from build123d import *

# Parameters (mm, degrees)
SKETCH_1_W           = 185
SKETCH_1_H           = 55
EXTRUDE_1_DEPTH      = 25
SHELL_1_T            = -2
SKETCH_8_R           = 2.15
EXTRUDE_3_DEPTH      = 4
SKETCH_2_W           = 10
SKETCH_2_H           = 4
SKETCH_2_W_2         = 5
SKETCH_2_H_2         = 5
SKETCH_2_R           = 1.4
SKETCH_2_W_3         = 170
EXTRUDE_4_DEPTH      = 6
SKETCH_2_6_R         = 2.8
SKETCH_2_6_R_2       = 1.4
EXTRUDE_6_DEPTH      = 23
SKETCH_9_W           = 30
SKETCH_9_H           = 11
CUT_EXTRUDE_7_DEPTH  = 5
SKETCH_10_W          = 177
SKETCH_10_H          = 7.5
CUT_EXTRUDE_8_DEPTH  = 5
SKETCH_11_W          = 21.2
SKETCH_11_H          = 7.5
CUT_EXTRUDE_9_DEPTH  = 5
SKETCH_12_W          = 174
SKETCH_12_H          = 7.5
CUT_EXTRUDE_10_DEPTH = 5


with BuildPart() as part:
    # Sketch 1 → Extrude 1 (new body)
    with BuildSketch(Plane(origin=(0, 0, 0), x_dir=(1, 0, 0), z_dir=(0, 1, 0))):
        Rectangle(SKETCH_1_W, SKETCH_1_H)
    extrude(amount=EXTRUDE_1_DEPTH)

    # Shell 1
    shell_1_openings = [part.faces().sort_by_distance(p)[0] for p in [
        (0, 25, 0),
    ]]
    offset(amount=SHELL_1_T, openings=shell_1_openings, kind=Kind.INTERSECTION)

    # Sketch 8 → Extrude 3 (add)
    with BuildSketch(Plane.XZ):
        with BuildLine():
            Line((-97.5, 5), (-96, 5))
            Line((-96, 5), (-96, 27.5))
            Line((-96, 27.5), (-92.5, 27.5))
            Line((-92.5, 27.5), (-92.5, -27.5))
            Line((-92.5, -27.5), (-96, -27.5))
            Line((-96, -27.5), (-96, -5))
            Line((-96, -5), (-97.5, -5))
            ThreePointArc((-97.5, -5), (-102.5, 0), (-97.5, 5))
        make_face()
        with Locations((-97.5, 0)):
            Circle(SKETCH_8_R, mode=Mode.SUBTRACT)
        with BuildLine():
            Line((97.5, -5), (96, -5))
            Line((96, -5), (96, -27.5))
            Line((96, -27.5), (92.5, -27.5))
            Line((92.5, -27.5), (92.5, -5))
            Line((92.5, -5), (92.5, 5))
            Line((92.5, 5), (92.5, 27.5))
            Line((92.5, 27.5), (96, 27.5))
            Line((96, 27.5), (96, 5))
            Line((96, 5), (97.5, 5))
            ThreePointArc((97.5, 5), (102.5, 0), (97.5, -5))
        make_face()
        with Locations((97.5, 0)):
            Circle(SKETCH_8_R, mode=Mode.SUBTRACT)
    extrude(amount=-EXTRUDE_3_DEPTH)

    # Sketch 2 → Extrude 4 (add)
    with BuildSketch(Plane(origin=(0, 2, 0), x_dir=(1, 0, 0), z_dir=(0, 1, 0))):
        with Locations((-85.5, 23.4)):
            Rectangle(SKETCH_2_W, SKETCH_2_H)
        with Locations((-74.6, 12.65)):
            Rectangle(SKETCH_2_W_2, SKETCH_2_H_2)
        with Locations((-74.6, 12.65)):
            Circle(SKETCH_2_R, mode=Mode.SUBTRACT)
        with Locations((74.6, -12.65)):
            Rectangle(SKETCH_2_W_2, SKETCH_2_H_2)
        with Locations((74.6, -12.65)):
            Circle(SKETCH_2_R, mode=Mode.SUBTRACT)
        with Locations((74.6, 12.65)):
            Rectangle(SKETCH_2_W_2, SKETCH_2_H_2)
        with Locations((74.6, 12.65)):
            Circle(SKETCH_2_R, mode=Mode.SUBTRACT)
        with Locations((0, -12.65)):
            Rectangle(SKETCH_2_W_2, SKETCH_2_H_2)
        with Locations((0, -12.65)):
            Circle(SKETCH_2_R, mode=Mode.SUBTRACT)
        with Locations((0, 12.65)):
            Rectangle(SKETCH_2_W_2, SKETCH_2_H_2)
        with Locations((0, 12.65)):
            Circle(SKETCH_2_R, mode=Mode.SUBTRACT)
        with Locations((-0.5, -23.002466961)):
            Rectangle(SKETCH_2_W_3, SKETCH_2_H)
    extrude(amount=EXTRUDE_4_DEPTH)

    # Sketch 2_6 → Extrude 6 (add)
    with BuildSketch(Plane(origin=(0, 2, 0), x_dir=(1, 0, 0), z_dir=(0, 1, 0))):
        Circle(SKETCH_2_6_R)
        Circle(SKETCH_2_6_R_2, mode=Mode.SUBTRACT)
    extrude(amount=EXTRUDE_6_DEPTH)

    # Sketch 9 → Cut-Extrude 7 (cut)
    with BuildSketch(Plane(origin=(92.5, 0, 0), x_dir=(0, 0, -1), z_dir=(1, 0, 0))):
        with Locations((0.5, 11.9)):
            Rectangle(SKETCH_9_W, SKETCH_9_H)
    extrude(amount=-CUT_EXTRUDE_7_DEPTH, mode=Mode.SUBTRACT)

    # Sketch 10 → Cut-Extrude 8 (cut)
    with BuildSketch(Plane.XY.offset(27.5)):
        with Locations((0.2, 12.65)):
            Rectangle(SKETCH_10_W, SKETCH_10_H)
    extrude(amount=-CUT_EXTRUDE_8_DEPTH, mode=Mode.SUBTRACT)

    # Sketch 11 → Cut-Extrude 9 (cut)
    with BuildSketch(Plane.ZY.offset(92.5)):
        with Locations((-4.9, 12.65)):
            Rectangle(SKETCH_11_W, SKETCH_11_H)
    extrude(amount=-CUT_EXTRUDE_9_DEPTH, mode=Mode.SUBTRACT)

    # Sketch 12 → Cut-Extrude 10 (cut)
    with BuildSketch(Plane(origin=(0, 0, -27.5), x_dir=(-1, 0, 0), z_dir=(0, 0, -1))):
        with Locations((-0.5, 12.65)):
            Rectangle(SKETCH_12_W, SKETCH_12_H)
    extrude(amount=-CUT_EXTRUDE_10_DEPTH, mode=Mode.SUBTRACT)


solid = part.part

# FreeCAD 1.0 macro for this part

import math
import FreeCAD as App
import Part
import Sketcher

V = App.Vector


def faces_at(feature, points):
    """Names of the faces that lie closest to the given points."""
    faces = feature.Shape.Faces
    near = lambda p: min(range(len(faces)), key=lambda i: faces[i].distToShape(Part.Vertex(*p))[0])
    return sorted({f"Face{near(p) + 1}" for p in points})

doc = App.newDocument("Part")
body = doc.addObject("PartDesign::Body", "Body")

# Sketch on XZ plane
sketch1 = body.newObject("Sketcher::SketchObject", "Sketch")
sketch1.AttachmentSupport = (doc.getObject("XZ_Plane"), [""])
sketch1.MapMode = "FlatFace"
sketch1.addGeometry([
    Part.LineSegment(V(-92, -28, 0), V(-92, 28, 0)),
    Part.LineSegment(V(-92, 28, 0), V(92, 28, 0)),
    Part.LineSegment(V(92, 28, 0), V(92, -28, 0)),
    Part.LineSegment(V(92, -28, 0), V(-92, -28, 0)),
], False)
sketch1.addConstraint([
    Sketcher.Constraint("Coincident", 0, 2, 1, 1),
    Sketcher.Constraint("Coincident", 1, 2, 2, 1),
    Sketcher.Constraint("Coincident", 2, 2, 3, 1),
    Sketcher.Constraint("Coincident", 3, 2, 0, 1),
    Sketcher.Constraint("Vertical", 0),
    Sketcher.Constraint("Horizontal", 1),
    Sketcher.Constraint("Vertical", 2),
    Sketcher.Constraint("Horizontal", 3),
    Sketcher.Constraint("Symmetric", 0, 2, 2, 2, -1, 1),
    Sketcher.Constraint("DistanceX", 1, 1, 1, 2, 185.0),
    Sketcher.Constraint("DistanceY", 0, 1, 0, 2, 55.0),
])
pad1 = body.newObject("PartDesign::Pad", "Pad")
pad1.Profile = sketch1
pad1.Length = 25
pad1.Reversed = True
doc.recompute()

thickness = body.newObject("PartDesign::Thickness", "Thickness")
thickness.Base = (pad1, faces_at(pad1, [(0, 25, 0)]))
thickness.Value = 2
thickness.Reversed = True
thickness.Join = "Intersection"

# Sketch on XZ plane
sketch2 = body.newObject("Sketcher::SketchObject", "Sketch001")
sketch2.AttachmentSupport = (doc.getObject("XZ_Plane"), [""])
sketch2.MapMode = "FlatFace"
sketch2.addGeometry([
    Part.LineSegment(V(-96, 5, 0), V(-97.5, 5, 0)),  # 0
    Part.ArcOfCircle(Part.Circle(V(-97.5, 0, 0), V(0, 0, 1), 5), math.radians(90), math.radians(270)),  # 1
    Part.LineSegment(V(-97.5, -5, 0), V(-96, -5, 0)),  # 2
    Part.LineSegment(V(-96, -5, 0), V(-96, -27.5, 0)),  # 3
    Part.LineSegment(V(-96, -27.5, 0), V(-92.5, -27.5, 0)),  # 4
    Part.LineSegment(V(-92.5, -27.5, 0), V(-92.5, 27.5, 0)),  # 5
    Part.LineSegment(V(-92.5, 27.5, 0), V(-96, 27.5, 0)),  # 6
    Part.LineSegment(V(-96, 27.5, 0), V(-96, 5, 0)),  # 7
    Part.Circle(V(-97.5, 0, 0), V(0, 0, 1), 2.1),  # 8
    Part.LineSegment(V(96, -5, 0), V(97.5, -5, 0)),  # 9
    Part.ArcOfCircle(Part.Circle(V(97.5, 0, 0), V(0, 0, 1), 5), math.radians(-90), math.radians(90)),  # 10
    Part.LineSegment(V(97.5, 5, 0), V(96, 5, 0)),  # 11
    Part.LineSegment(V(96, 5, 0), V(96, 27.5, 0)),  # 12
    Part.LineSegment(V(96, 27.5, 0), V(92.5, 27.5, 0)),  # 13
    Part.LineSegment(V(92.5, 27.5, 0), V(92.5, -27.5, 0)),  # 14
    Part.LineSegment(V(92.5, -27.5, 0), V(96, -27.5, 0)),  # 15
    Part.LineSegment(V(96, -27.5, 0), V(96, -5, 0)),  # 16
    Part.Circle(V(97.5, 0, 0), V(0, 0, 1), 2.1),  # 17
], False)
sketch2.addConstraint([
    Sketcher.Constraint("Tangent", 0, 2, 1, 1),
    Sketcher.Constraint("Tangent", 1, 2, 2, 1),
    Sketcher.Constraint("Coincident", 2, 2, 3, 1),
    Sketcher.Constraint("Coincident", 3, 2, 4, 1),
    Sketcher.Constraint("Coincident", 4, 2, 5, 1),
    Sketcher.Constraint("Coincident", 5, 2, 6, 1),
    Sketcher.Constraint("Coincident", 6, 2, 7, 1),
    Sketcher.Constraint("Coincident", 7, 2, 0, 1),
    Sketcher.Constraint("Tangent", 9, 2, 10, 1),
    Sketcher.Constraint("Tangent", 10, 2, 11, 1),
    Sketcher.Constraint("Coincident", 11, 2, 12, 1),
    Sketcher.Constraint("Coincident", 12, 2, 13, 1),
    Sketcher.Constraint("Coincident", 13, 2, 14, 1),
    Sketcher.Constraint("Coincident", 14, 2, 15, 1),
    Sketcher.Constraint("Coincident", 15, 2, 16, 1),
    Sketcher.Constraint("Coincident", 16, 2, 9, 1),
    Sketcher.Constraint("Horizontal", 0),
    Sketcher.Constraint("Horizontal", 2),
    Sketcher.Constraint("Vertical", 3),
    Sketcher.Constraint("Horizontal", 4),
    Sketcher.Constraint("Vertical", 5),
    Sketcher.Constraint("Horizontal", 6),
    Sketcher.Constraint("Vertical", 7),
    Sketcher.Constraint("Horizontal", 9),
    Sketcher.Constraint("Horizontal", 11),
    Sketcher.Constraint("Vertical", 12),
    Sketcher.Constraint("Horizontal", 13),
    Sketcher.Constraint("Vertical", 14),
    Sketcher.Constraint("Horizontal", 15),
    Sketcher.Constraint("Vertical", 16),
    Sketcher.Constraint("Coincident", 8, 3, 1, 3),
    Sketcher.Constraint("Coincident", 17, 3, 10, 3),
    Sketcher.Constraint("Equal", 1, 10),
    Sketcher.Constraint("Equal", 8, 17),
    Sketcher.Constraint("Symmetric", 1, 3, 10, 3, -1, 1),
    Sketcher.Constraint("Symmetric", 3, 2, 12, 2, -1, 1),
    Sketcher.Constraint("Symmetric", 5, 2, 14, 2, -1, 1),
    Sketcher.Constraint("Symmetric", 7, 2, 11, 2, -2),
    Sketcher.Constraint("Symmetric", 3, 2, 15, 2, -2),
    Sketcher.Constraint("Radius", 1, 5.0),
    Sketcher.Constraint("Diameter", 8, 4.3),
    Sketcher.Constraint("DistanceY", 5, 1, 5, 2, 55.0),
    Sketcher.Constraint("DistanceX", 0, 2, 0, 1, 1.5),
    Sketcher.Constraint("DistanceX", 4, 1, 4, 2, 3.5),
    Sketcher.Constraint("DistanceX", 2, 2, -1, 1, 96.0),
])
pad2 = body.newObject("PartDesign::Pad", "Pad001")
pad2.Profile = sketch2
pad2.Length = 4
pad2.Reversed = True

# Sketch on XZ plane
sketch3 = body.newObject("Sketcher::SketchObject", "Sketch002")
sketch3.AttachmentSupport = (doc.getObject("XZ_Plane"), [""])
sketch3.MapMode = "FlatFace"
sketch3.AttachmentOffset = App.Placement(V(0, 0, -2), App.Rotation())
sketch3.addGeometry([
    Part.LineSegment(V(-90.5, -25.4, 0), V(-90.5, -21.4, 0)),  # 0
    Part.LineSegment(V(-90.5, -21.4, 0), V(-80.5, -21.4, 0)),  # 1
    Part.LineSegment(V(-80.5, -21.4, 0), V(-80.5, -25.4, 0)),  # 2
    Part.LineSegment(V(-80.5, -25.4, 0), V(-90.5, -25.4, 0)),  # 3
    Part.LineSegment(V(-77.1, -15.2, 0), V(-77.1, -10.2, 0)),  # 4
    Part.LineSegment(V(-77.1, -10.2, 0), V(-72.1, -10.2, 0)),  # 5
    Part.LineSegment(V(-72.1, -10.2, 0), V(-72.1, -15.2, 0)),  # 6
    Part.LineSegment(V(-72.1, -15.2, 0), V(-77.1, -15.2, 0)),  # 7
    Part.Circle(V(-74.6, -12.7, 0), V(0, 0, 1), 1.4),  # 8
    Part.LineSegment(V(72.1, 10.2, 0), V(72.1, 15.2, 0)),  # 9
    Part.LineSegment(V(72.1, 15.2, 0), V(77.1, 15.2, 0)),  # 10
    Part.LineSegment(V(77.1, 15.2, 0), V(77.1, 10.2, 0)),  # 11
    Part.LineSegment(V(77.1, 10.2, 0), V(72.1, 10.2, 0)),  # 12
    Part.Circle(V(74.6, 12.7, 0), V(0, 0, 1), 1.4),  # 13
    Part.LineSegment(V(72.1, -15.2, 0), V(72.1, -10.2, 0)),  # 14
    Part.LineSegment(V(72.1, -10.2, 0), V(77.1, -10.2, 0)),  # 15
    Part.LineSegment(V(77.1, -10.2, 0), V(77.1, -15.2, 0)),  # 16
    Part.LineSegment(V(77.1, -15.2, 0), V(72.1, -15.2, 0)),  # 17
    Part.Circle(V(74.6, -12.7, 0), V(0, 0, 1), 1.4),  # 18
    Part.LineSegment(V(-2.5, 10.2, 0), V(-2.5, 15.2, 0)),  # 19
    Part.LineSegment(V(-2.5, 15.2, 0), V(2.5, 15.2, 0)),  # 20
    Part.LineSegment(V(2.5, 15.2, 0), V(2.5, 10.2, 0)),  # 21
    Part.LineSegment(V(2.5, 10.2, 0), V(-2.5, 10.2, 0)),  # 22
    Part.Circle(V(0, 12.7, 0), V(0, 0, 1), 1.4),  # 23
    Part.LineSegment(V(-2.5, -15.2, 0), V(-2.5, -10.2, 0)),  # 24
    Part.LineSegment(V(-2.5, -10.2, 0), V(2.5, -10.2, 0)),  # 25
    Part.LineSegment(V(2.5, -10.2, 0), V(2.5, -15.2, 0)),  # 26
    Part.LineSegment(V(2.5, -15.2, 0), V(-2.5, -15.2, 0)),  # 27
    Part.Circle(V(0, -12.7, 0), V(0, 0, 1), 1.4),  # 28
    Part.LineSegment(V(-85.5, 21, 0), V(-85.5, 25, 0)),  # 29
    Part.LineSegment(V(-85.5, 25, 0), V(84.5, 25, 0)),  # 30
    Part.LineSegment(V(84.5, 25, 0), V(84.5, 21, 0)),  # 31
    Part.LineSegment(V(84.5, 21, 0), V(-85.5, 21, 0)),  # 32
], False)
sketch3.addConstraint([
    Sketcher.Constraint("Coincident", 0, 2, 1, 1),
    Sketcher.Constraint("Coincident", 1, 2, 2, 1),
    Sketcher.Constraint("Coincident", 2, 2, 3, 1),
    Sketcher.Constraint("Coincident", 3, 2, 0, 1),
    Sketcher.Constraint("Coincident", 4, 2, 5, 1),
    Sketcher.Constraint("Coincident", 5, 2, 6, 1),
    Sketcher.Constraint("Coincident", 6, 2, 7, 1),
    Sketcher.Constraint("Coincident", 7, 2, 4, 1),
    Sketcher.Constraint("Coincident", 9, 2, 10, 1),
    Sketcher.Constraint("Coincident", 10, 2, 11, 1),
    Sketcher.Constraint("Coincident", 11, 2, 12, 1),
    Sketcher.Constraint("Coincident", 12, 2, 9, 1),
    Sketcher.Constraint("Coincident", 14, 2, 15, 1),
    Sketcher.Constraint("Coincident", 15, 2, 16, 1),
    Sketcher.Constraint("Coincident", 16, 2, 17, 1),
    Sketcher.Constraint("Coincident", 17, 2, 14, 1),
    Sketcher.Constraint("Coincident", 19, 2, 20, 1),
    Sketcher.Constraint("Coincident", 20, 2, 21, 1),
    Sketcher.Constraint("Coincident", 21, 2, 22, 1),
    Sketcher.Constraint("Coincident", 22, 2, 19, 1),
    Sketcher.Constraint("Coincident", 24, 2, 25, 1),
    Sketcher.Constraint("Coincident", 25, 2, 26, 1),
    Sketcher.Constraint("Coincident", 26, 2, 27, 1),
    Sketcher.Constraint("Coincident", 27, 2, 24, 1),
    Sketcher.Constraint("Coincident", 29, 2, 30, 1),
    Sketcher.Constraint("Coincident", 30, 2, 31, 1),
    Sketcher.Constraint("Coincident", 31, 2, 32, 1),
    Sketcher.Constraint("Coincident", 32, 2, 29, 1),
    Sketcher.Constraint("Vertical", 0),
    Sketcher.Constraint("Horizontal", 1),
    Sketcher.Constraint("Vertical", 2),
    Sketcher.Constraint("Horizontal", 3),
    Sketcher.Constraint("Vertical", 4),
    Sketcher.Constraint("Horizontal", 5),
    Sketcher.Constraint("Vertical", 6),
    Sketcher.Constraint("Horizontal", 7),
    Sketcher.Constraint("Vertical", 9),
    Sketcher.Constraint("Horizontal", 10),
    Sketcher.Constraint("Vertical", 11),
    Sketcher.Constraint("Horizontal", 12),
    Sketcher.Constraint("Vertical", 14),
    Sketcher.Constraint("Horizontal", 15),
    Sketcher.Constraint("Vertical", 16),
    Sketcher.Constraint("Horizontal", 17),
    Sketcher.Constraint("Vertical", 19),
    Sketcher.Constraint("Horizontal", 20),
    Sketcher.Constraint("Vertical", 21),
    Sketcher.Constraint("Horizontal", 22),
    Sketcher.Constraint("Vertical", 24),
    Sketcher.Constraint("Horizontal", 25),
    Sketcher.Constraint("Vertical", 26),
    Sketcher.Constraint("Horizontal", 27),
    Sketcher.Constraint("Vertical", 29),
    Sketcher.Constraint("Horizontal", 30),
    Sketcher.Constraint("Vertical", 31),
    Sketcher.Constraint("Horizontal", 32),
    Sketcher.Constraint("Equal", 8, 13),
    Sketcher.Constraint("Equal", 13, 18),
    Sketcher.Constraint("Equal", 18, 23),
    Sketcher.Constraint("Equal", 23, 28),
    Sketcher.Constraint("Symmetric", 8, 3, 13, 3, -1, 1),
    Sketcher.Constraint("Symmetric", 23, 3, 28, 3, -1, 1),
    Sketcher.Constraint("Symmetric", 6, 2, 9, 2, -1, 1),
    Sketcher.Constraint("Symmetric", 4, 2, 11, 2, -1, 1),
    Sketcher.Constraint("Symmetric", 21, 2, 24, 2, -1, 1),
    Sketcher.Constraint("Symmetric", 19, 2, 26, 2, -1, 1),
    Sketcher.Constraint("Symmetric", 8, 3, 18, 3, -2),
    Sketcher.Constraint("Symmetric", 5, 2, 14, 2, -2),
    Sketcher.Constraint("Symmetric", 7, 2, 16, 2, -2),
    Sketcher.Constraint("PointOnObject", 23, 3, -2),
    Sketcher.Constraint("Horizontal", 13, 3, 23, 3),
    Sketcher.Constraint("Horizontal", 10, 2, 19, 2),
    Sketcher.Constraint("Horizontal", 12, 2, 21, 2),
    Sketcher.Constraint("Vertical", 22, 2, 24, 2),
    Sketcher.Constraint("Equal", 17, 20),
    Sketcher.Constraint("Equal", 27, 4),
    Sketcher.Constraint("Equal", 2, 29),
    Sketcher.Constraint("Diameter", 8, 2.8),
    Sketcher.Constraint("DistanceX", 1, 1, 1, 2, 10.0),
    Sketcher.Constraint("DistanceX", 5, 1, 5, 2, 5.0),
    Sketcher.Constraint("DistanceX", 30, 1, 30, 2, 170.0),
    Sketcher.Constraint("DistanceY", 0, 1, 0, 2, 4.0),
    Sketcher.Constraint("DistanceX", 8, 3, -1, 1, 74.6),
    Sketcher.Constraint("DistanceX", 0, 2, -1, 1, 90.5),
    Sketcher.Constraint("DistanceY", 0, 2, -1, 1, 21.4),
    Sketcher.Constraint("DistanceX", 4, 2, -1, 1, 77.1),
    Sketcher.Constraint("DistanceX", 29, 2, -1, 1, 85.5),
    Sketcher.Constraint("DistanceY", 8, 3, 13, 3, 25.3),
    Sketcher.Constraint("DistanceY", 8, 3, 4, 2, 2.5),
    Sketcher.Constraint("DistanceY", -1, 1, 29, 2, 25.002467),
])
pad3 = body.newObject("PartDesign::Pad", "Pad002")
pad3.Profile = sketch3
pad3.Length = 6
pad3.Reversed = True

# Sketch on XZ plane
sketch4 = body.newObject("Sketcher::SketchObject", "Sketch003")
sketch4.AttachmentSupport = (doc.getObject("XZ_Plane"), [""])
sketch4.MapMode = "FlatFace"
sketch4.AttachmentOffset = App.Placement(V(0, 0, -2), App.Rotation())
sketch4.addGeometry([
    Part.Circle(V(0, 0, 0), V(0, 0, 1), 2.8),
    Part.Circle(V(0, 0, 0), V(0, 0, 1), 1.4),
], False)
sketch4.addConstraint([
    Sketcher.Constraint("Coincident", 0, 3, -1, 1),
    Sketcher.Constraint("Coincident", 1, 3, -1, 1),
    Sketcher.Constraint("Diameter", 0, 5.6),
    Sketcher.Constraint("Diameter", 1, 2.8),
])
pad4 = body.newObject("PartDesign::Pad", "Pad003")
pad4.Profile = sketch4
pad4.Length = 23
pad4.Reversed = True

# Sketch on YZ plane
sketch5 = body.newObject("Sketcher::SketchObject", "Sketch004")
sketch5.AttachmentSupport = (doc.getObject("YZ_Plane"), [""])
sketch5.MapMode = "FlatFace"
sketch5.AttachmentOffset = App.Placement(V(0, 0, 92.5), App.Rotation())
sketch5.addGeometry([
    Part.LineSegment(V(17, 14, 0), V(6, 14, 0)),
    Part.LineSegment(V(6, 14, 0), V(6, -16, 0)),
    Part.LineSegment(V(6, -16, 0), V(17, -16, 0)),
    Part.LineSegment(V(17, -16, 0), V(17, 14, 0)),
], False)
sketch5.addConstraint([
    Sketcher.Constraint("Coincident", 0, 2, 1, 1),
    Sketcher.Constraint("Coincident", 1, 2, 2, 1),
    Sketcher.Constraint("Coincident", 2, 2, 3, 1),
    Sketcher.Constraint("Coincident", 3, 2, 0, 1),
    Sketcher.Constraint("Horizontal", 0),
    Sketcher.Constraint("Vertical", 1),
    Sketcher.Constraint("Horizontal", 2),
    Sketcher.Constraint("Vertical", 3),
    Sketcher.Constraint("DistanceX", 0, 2, 0, 1, 11.0),
    Sketcher.Constraint("DistanceY", 1, 2, 1, 1, 30.0),
    Sketcher.Constraint("DistanceX", -1, 1, 0, 2, 6.4),
    Sketcher.Constraint("DistanceY", -1, 1, 0, 2, 14.5),
])
pocket1 = body.newObject("PartDesign::Pocket", "Pocket")
pocket1.Profile = sketch5
pocket1.Length = 5

# Sketch on XY plane
sketch6 = body.newObject("Sketcher::SketchObject", "Sketch005")
sketch6.AttachmentSupport = (doc.getObject("XY_Plane"), [""])
sketch6.MapMode = "FlatFace"
sketch6.AttachmentOffset = App.Placement(V(0, 0, 27.5), App.Rotation())
sketch6.addGeometry([
    Part.LineSegment(V(-88, 16, 0), V(-88, 9, 0)),
    Part.LineSegment(V(-88, 9, 0), V(89, 9, 0)),
    Part.LineSegment(V(89, 9, 0), V(89, 16, 0)),
    Part.LineSegment(V(89, 16, 0), V(-88, 16, 0)),
], False)
sketch6.addConstraint([
    Sketcher.Constraint("Coincident", 0, 2, 1, 1),
    Sketcher.Constraint("Coincident", 1, 2, 2, 1),
    Sketcher.Constraint("Coincident", 2, 2, 3, 1),
    Sketcher.Constraint("Coincident", 3, 2, 0, 1),
    Sketcher.Constraint("Vertical", 0),
    Sketcher.Constraint("Horizontal", 1),
    Sketcher.Constraint("Vertical", 2),
    Sketcher.Constraint("Horizontal", 3),
    Sketcher.Constraint("DistanceX", 1, 1, 1, 2, 177.0),
    Sketcher.Constraint("DistanceY", 0, 2, 0, 1, 7.5),
    Sketcher.Constraint("DistanceX", 0, 2, -1, 1, 88.3),
    Sketcher.Constraint("DistanceY", -1, 1, 0, 2, 8.9),
])
pocket2 = body.newObject("PartDesign::Pocket", "Pocket001")
pocket2.Profile = sketch6
pocket2.Length = 5

# Sketch on YZ plane
sketch7 = body.newObject("Sketcher::SketchObject", "Sketch006")
sketch7.AttachmentSupport = (doc.getObject("YZ_Plane"), [""])
sketch7.MapMode = "FlatFace"
sketch7.AttachmentOffset = App.Placement(V(0, 0, -92.5), App.Rotation())
sketch7.addGeometry([
    Part.LineSegment(V(16, -16, 0), V(9, -16, 0)),
    Part.LineSegment(V(9, -16, 0), V(9, 6, 0)),
    Part.LineSegment(V(9, 6, 0), V(16, 6, 0)),
    Part.LineSegment(V(16, 6, 0), V(16, -16, 0)),
], False)
sketch7.addConstraint([
    Sketcher.Constraint("Coincident", 0, 2, 1, 1),
    Sketcher.Constraint("Coincident", 1, 2, 2, 1),
    Sketcher.Constraint("Coincident", 2, 2, 3, 1),
    Sketcher.Constraint("Coincident", 3, 2, 0, 1),
    Sketcher.Constraint("Horizontal", 0),
    Sketcher.Constraint("Vertical", 1),
    Sketcher.Constraint("Horizontal", 2),
    Sketcher.Constraint("Vertical", 3),
    Sketcher.Constraint("DistanceX", 0, 2, 0, 1, 7.5),
    Sketcher.Constraint("DistanceY", 1, 1, 1, 2, 21.2),
    Sketcher.Constraint("DistanceX", -1, 1, 0, 2, 8.9),
    Sketcher.Constraint("DistanceY", 0, 2, -1, 1, 15.5),
])
pocket3 = body.newObject("PartDesign::Pocket", "Pocket002")
pocket3.Profile = sketch7
pocket3.Length = 5
pocket3.Reversed = True

# Sketch on XY plane
sketch8 = body.newObject("Sketcher::SketchObject", "Sketch007")
sketch8.AttachmentSupport = (doc.getObject("XY_Plane"), [""])
sketch8.MapMode = "FlatFace"
sketch8.AttachmentOffset = App.Placement(V(0, 0, -27.5), App.Rotation())
sketch8.addGeometry([
    Part.LineSegment(V(88, 16, 0), V(88, 9, 0)),
    Part.LineSegment(V(88, 9, 0), V(-86, 9, 0)),
    Part.LineSegment(V(-86, 9, 0), V(-86, 16, 0)),
    Part.LineSegment(V(-86, 16, 0), V(88, 16, 0)),
], False)
sketch8.addConstraint([
    Sketcher.Constraint("Coincident", 0, 2, 1, 1),
    Sketcher.Constraint("Coincident", 1, 2, 2, 1),
    Sketcher.Constraint("Coincident", 2, 2, 3, 1),
    Sketcher.Constraint("Coincident", 3, 2, 0, 1),
    Sketcher.Constraint("Vertical", 0),
    Sketcher.Constraint("Horizontal", 1),
    Sketcher.Constraint("Vertical", 2),
    Sketcher.Constraint("Horizontal", 3),
    Sketcher.Constraint("DistanceX", 1, 2, 1, 1, 174.0),
    Sketcher.Constraint("DistanceY", 0, 2, 0, 1, 7.5),
    Sketcher.Constraint("DistanceX", -1, 1, 0, 2, 87.5),
    Sketcher.Constraint("DistanceY", -1, 1, 0, 2, 8.9),
])
pocket4 = body.newObject("PartDesign::Pocket", "Pocket003")
pocket4.Profile = sketch8
pocket4.Length = 5
pocket4.Reversed = True

doc.recompute()
